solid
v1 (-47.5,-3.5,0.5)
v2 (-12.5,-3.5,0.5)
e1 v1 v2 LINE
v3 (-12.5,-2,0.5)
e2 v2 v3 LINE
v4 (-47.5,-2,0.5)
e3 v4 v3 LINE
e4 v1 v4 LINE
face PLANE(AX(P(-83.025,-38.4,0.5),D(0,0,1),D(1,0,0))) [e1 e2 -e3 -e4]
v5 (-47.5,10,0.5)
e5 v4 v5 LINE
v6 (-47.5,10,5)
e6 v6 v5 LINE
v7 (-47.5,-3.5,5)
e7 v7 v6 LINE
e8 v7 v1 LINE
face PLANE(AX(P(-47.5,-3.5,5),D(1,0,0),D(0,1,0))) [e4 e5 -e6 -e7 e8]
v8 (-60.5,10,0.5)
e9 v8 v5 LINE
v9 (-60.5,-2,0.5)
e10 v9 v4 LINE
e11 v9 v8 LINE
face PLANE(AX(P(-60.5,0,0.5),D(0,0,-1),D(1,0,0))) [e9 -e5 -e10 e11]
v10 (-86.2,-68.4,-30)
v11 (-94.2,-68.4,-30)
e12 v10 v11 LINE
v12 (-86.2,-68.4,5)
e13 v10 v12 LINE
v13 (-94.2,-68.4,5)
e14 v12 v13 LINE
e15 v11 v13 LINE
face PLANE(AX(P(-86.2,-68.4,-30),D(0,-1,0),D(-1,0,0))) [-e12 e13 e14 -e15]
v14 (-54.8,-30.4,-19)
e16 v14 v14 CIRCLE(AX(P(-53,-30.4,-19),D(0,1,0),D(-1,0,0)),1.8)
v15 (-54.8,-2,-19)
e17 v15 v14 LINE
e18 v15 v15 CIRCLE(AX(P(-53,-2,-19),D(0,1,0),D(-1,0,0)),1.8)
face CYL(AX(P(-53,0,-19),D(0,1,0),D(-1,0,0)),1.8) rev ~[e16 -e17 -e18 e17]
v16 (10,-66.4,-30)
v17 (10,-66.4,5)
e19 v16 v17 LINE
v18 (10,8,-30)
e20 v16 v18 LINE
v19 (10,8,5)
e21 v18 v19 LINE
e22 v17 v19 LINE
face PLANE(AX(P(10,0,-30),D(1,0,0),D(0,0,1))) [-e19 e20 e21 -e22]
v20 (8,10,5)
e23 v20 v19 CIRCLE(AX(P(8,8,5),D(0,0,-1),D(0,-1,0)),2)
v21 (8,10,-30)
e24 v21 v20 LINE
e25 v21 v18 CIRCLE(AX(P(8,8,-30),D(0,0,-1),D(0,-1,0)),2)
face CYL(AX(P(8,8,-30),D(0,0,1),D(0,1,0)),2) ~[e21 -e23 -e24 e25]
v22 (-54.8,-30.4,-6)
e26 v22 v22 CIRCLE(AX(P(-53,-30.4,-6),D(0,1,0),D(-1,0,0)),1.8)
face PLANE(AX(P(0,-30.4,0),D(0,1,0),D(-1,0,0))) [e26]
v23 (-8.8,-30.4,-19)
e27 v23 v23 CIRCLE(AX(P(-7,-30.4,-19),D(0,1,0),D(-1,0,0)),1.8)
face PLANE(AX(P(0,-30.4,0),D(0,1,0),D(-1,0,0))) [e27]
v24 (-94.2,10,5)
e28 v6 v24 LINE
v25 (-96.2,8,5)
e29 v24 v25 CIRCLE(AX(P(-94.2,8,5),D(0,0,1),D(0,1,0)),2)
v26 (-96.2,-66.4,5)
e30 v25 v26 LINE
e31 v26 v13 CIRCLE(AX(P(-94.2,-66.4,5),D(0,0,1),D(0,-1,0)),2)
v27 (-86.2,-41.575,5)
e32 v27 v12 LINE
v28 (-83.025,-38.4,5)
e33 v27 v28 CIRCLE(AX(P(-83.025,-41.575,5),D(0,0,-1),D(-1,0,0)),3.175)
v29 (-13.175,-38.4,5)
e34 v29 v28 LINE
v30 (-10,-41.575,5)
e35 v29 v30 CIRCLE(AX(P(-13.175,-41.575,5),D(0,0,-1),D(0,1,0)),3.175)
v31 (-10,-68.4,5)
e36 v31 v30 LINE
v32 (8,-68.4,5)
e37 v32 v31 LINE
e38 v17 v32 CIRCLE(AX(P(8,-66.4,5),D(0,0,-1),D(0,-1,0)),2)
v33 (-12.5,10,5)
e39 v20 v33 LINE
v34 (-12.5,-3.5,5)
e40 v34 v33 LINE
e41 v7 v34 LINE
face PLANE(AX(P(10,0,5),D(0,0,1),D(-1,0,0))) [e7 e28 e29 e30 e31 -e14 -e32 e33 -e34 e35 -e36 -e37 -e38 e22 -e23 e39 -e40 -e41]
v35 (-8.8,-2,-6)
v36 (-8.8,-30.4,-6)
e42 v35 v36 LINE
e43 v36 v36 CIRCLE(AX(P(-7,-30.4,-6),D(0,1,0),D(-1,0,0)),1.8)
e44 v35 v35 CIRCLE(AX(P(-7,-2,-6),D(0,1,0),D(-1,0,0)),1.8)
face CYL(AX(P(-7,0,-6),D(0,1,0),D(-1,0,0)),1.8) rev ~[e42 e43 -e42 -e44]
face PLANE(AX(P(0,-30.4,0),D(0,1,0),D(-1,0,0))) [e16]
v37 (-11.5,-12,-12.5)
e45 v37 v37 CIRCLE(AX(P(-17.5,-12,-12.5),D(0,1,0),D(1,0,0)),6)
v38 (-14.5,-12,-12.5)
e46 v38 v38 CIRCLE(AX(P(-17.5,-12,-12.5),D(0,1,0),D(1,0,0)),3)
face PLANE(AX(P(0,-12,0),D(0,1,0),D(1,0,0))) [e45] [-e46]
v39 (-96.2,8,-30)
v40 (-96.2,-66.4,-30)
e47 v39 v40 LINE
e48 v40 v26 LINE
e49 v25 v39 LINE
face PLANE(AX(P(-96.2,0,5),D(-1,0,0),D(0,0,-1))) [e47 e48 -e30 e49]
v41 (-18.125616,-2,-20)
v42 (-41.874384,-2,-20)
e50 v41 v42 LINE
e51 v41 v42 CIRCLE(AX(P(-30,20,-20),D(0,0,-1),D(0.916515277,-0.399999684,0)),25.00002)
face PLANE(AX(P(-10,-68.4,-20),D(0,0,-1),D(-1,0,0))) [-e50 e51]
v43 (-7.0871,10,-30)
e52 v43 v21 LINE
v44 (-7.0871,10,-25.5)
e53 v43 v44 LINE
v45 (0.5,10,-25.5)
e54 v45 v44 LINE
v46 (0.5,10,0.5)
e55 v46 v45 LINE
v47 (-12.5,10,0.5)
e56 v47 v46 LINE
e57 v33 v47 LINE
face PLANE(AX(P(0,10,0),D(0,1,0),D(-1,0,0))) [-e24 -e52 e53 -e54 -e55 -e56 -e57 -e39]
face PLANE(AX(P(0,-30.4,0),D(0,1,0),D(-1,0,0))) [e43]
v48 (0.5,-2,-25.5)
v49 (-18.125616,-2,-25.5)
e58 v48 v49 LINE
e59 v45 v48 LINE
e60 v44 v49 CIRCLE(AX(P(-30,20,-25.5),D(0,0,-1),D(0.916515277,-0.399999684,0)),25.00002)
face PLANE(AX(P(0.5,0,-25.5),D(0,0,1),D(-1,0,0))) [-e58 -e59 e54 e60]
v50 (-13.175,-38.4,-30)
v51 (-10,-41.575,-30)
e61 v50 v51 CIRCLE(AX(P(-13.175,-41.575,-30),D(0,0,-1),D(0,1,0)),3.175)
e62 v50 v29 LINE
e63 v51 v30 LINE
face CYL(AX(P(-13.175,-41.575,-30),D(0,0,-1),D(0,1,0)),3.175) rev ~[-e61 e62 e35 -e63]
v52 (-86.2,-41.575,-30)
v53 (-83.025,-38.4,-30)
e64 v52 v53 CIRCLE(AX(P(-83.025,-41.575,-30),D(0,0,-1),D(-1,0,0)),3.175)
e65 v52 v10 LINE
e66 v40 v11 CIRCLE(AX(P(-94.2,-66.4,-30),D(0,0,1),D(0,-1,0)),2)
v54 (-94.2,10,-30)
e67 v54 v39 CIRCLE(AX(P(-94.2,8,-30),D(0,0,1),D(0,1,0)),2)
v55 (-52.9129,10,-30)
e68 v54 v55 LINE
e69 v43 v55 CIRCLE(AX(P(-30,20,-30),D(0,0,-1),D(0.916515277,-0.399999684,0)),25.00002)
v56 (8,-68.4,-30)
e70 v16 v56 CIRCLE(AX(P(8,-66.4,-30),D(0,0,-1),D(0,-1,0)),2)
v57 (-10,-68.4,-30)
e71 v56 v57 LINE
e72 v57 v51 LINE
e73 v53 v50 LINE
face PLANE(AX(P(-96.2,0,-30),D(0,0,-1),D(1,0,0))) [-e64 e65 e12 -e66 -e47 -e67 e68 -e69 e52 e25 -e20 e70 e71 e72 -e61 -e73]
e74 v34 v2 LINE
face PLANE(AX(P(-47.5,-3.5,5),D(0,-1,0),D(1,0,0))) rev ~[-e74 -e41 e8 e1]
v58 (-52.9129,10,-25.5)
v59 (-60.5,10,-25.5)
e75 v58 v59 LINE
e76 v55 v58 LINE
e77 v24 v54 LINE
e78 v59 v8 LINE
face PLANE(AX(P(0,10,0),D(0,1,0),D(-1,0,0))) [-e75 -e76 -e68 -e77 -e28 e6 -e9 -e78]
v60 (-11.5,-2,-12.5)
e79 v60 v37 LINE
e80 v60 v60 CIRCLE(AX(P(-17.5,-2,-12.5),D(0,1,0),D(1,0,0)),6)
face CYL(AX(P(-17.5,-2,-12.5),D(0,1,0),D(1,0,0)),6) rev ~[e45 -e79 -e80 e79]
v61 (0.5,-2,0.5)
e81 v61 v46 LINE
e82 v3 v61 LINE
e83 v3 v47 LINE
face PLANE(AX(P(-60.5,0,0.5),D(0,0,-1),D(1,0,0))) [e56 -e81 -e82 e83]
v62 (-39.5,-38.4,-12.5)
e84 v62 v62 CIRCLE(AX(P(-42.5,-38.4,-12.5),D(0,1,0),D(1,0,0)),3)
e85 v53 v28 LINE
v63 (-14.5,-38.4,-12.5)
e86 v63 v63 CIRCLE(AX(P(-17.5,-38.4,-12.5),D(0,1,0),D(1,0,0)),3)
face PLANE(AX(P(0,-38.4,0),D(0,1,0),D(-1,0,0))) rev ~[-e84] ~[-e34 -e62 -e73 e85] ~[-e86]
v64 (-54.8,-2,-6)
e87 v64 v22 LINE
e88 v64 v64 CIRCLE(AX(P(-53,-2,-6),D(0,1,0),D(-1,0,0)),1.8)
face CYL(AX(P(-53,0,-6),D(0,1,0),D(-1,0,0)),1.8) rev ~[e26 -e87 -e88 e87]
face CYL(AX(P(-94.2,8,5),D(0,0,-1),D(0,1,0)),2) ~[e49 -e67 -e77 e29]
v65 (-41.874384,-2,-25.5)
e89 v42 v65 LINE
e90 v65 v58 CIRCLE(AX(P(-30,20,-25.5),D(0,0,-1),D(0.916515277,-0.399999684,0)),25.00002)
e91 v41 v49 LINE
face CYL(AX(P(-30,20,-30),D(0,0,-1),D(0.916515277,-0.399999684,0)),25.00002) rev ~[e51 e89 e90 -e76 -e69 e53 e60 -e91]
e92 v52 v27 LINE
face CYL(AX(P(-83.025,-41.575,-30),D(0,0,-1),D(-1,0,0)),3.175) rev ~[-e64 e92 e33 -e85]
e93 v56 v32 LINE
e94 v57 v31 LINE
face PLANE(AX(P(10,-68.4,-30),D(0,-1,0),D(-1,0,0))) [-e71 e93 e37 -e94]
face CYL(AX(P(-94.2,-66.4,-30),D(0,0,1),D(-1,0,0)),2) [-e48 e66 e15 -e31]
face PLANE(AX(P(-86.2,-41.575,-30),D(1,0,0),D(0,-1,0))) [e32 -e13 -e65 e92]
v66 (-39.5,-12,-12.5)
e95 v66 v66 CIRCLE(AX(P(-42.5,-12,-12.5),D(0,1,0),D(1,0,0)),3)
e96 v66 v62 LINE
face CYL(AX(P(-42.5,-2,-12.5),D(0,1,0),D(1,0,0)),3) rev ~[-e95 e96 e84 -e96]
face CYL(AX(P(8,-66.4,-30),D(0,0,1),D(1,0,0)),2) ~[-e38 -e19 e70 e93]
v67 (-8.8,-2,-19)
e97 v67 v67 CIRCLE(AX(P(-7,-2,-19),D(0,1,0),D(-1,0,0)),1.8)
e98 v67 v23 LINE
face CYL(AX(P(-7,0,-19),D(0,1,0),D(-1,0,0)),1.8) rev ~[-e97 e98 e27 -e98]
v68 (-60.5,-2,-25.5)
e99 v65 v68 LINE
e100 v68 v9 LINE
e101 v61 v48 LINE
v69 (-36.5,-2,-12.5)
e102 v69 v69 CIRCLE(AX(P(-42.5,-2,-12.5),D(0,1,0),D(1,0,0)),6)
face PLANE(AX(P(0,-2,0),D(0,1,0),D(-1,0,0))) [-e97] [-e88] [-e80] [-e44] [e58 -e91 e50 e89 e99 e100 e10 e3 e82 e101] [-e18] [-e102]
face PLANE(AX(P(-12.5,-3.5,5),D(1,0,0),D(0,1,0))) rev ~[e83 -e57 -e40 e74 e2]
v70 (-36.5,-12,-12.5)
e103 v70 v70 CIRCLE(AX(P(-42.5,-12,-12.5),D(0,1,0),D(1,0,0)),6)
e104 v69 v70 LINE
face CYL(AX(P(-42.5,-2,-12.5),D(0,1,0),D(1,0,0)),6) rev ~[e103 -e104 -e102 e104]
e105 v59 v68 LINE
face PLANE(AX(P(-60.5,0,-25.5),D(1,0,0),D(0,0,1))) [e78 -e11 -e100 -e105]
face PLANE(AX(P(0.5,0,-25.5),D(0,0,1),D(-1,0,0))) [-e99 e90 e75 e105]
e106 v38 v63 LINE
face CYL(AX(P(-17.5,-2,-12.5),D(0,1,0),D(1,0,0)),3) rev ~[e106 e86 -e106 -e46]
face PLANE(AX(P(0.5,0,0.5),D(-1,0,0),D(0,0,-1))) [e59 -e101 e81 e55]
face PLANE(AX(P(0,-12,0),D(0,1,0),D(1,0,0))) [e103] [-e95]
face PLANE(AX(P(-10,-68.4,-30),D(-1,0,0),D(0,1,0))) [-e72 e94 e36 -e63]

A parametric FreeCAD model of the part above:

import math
import FreeCAD as App
import Part
import Sketcher


def edges_at(feature, points):
    """Names of the edges that pass closest to the given points."""
    edges = feature.Shape.Edges
    near = lambda p: min(range(len(edges)), key=lambda i: edges[i].distToShape(Part.Vertex(*p))[0])
    return sorted({f"Edge{near(p) + 1}" for p in points})


def add_polygon(sketch, points):
    """Adds a closed chain of lines whose ends are joined by coincident constraints."""
    first, n = sketch.GeometryCount, len(points)
    for a, b in zip(points, points[1:] + points[:1]):
        sketch.addGeometry(Part.LineSegment(App.Vector(*a, 0), App.Vector(*b, 0)), False)
    for i in range(n):
        sketch.addConstraint(Sketcher.Constraint("Coincident", first + i, 2, first + (i + 1) % n, 1))

doc = App.newDocument("Part")
params = doc.addObject("Spreadsheet::Sheet", "Params")
for row, (alias, value) in enumerate([
    ("sketch1_height", "35 mm"),
    ("sketch1_width", "106.2 mm"),
    ("pad1_length", "10 mm"),
    ("pad1_length2", "38.4 mm"),
    ("sketch2_diameter", "3.6 mm"),
    ("sketch2_width", "61 mm"),
    ("sketch2_height", "26 mm"),
    ("pocket1_length", "10 mm"),
    ("pocket1_length2", "2 mm"),
    ("sketch3_diameter", "3.6 mm"),
    ("pocket2_length", "10 mm"),
    ("pocket2_length2", "30.4 mm"),
    ("sketch4_width", "20 mm"),
    ("sketch4_height", "30 mm"),
    ("sketch4_width2", "10 mm"),
    ("pad2_length", "35 mm"),
    ("sketch5_diameter", "6 mm"),
    ("pocket3_length", "36.4 mm"),
    ("sketch6_diameter", "12 mm"),
    ("pocket4_length", "10 mm"),
    ("fillet_radius", "2 mm"),
    ("fillet2_radius", "2 mm"),
    ("sketch7_width", "35 mm"),
    ("sketch7_height", "13.5 mm"),
    ("pocket5_length", "4.5 mm"),
    ("sketch8_radius", "25 mm"),
    ("pocket6_length", "10 mm"),
], start=1):
    params.set(f"A{row}", alias)
    params.set(f"B{row}", "=" + value)
    params.setAlias(f"B{row}", alias)

body = doc.addObject("PartDesign::Body", "Body")

sketch1 = body.newObject("Sketcher::SketchObject", "Sketch")
sketch1.AttachmentSupport = (doc.getObject("XZ_Plane"), [""])
sketch1.MapMode = "FlatFace"
add_polygon(sketch1, [(-96, 5), (10, 5), (10, -30), (-96, -30)])
sketch1.addConstraint(Sketcher.Constraint("Horizontal", 0))
sketch1.addConstraint(Sketcher.Constraint("Vertical", 1))
sketch1.addConstraint(Sketcher.Constraint("Horizontal", 2))
sketch1.addConstraint(Sketcher.Constraint("Vertical", 3))
sketch1.addConstraint(Sketcher.Constraint("DistanceY", 1, 2, 1, 1, 35.0))
sketch1.addConstraint(Sketcher.Constraint("DistanceX", 0, 1, 0, 2, 106.2))
sketch1.addConstraint(Sketcher.Constraint("DistanceX", -1, 1, 0, 2, 10.0))
sketch1.addConstraint(Sketcher.Constraint("DistanceY", -1, 1, 0, 2, 5.0))
sketch1.setExpression("Constraints[8]", "Params.sketch1_height")
sketch1.setExpression("Constraints[9]", "Params.sketch1_width")
pad1 = body.newObject("PartDesign::Pad", "Pad")
pad1.Profile = sketch1
pad1.Type = "TwoLengths"
pad1.setExpression("Length", "Params.pad1_length")
pad1.setExpression("Length2", "Params.pad1_length2")
pad1.Reversed = True

sketch2 = body.newObject("Sketcher::SketchObject", "Sketch001")
sketch2.AttachmentSupport = (doc.getObject("XZ_Plane"), [""])
sketch2.MapMode = "FlatFace"
add_polygon(sketch2, [(-60.5, -25.5), (-60.5, 0.5), (0.5, 0.5), (0.5, -25.5)])
sketch2.addGeometry(Part.Circle(App.Vector(-7, -19, 0), App.Vector(0, 0, 1), 1.8), False)
sketch2.addGeometry(Part.Circle(App.Vector(-53, -19, 0), App.Vector(0, 0, 1), 1.8), False)
sketch2.addGeometry(Part.Circle(App.Vector(-7, -6, 0), App.Vector(0, 0, 1), 1.8), False)
sketch2.addGeometry(Part.Circle(App.Vector(-53, -6, 0), App.Vector(0, 0, 1), 1.8), False)
sketch2.addConstraint(Sketcher.Constraint("Vertical", 0))
sketch2.addConstraint(Sketcher.Constraint("Horizontal", 1))
sketch2.addConstraint(Sketcher.Constraint("Vertical", 2))
sketch2.addConstraint(Sketcher.Constraint("Horizontal", 3))
sketch2.addConstraint(Sketcher.Constraint("Equal", 4, 5))
sketch2.addConstraint(Sketcher.Constraint("Equal", 5, 6))
sketch2.addConstraint(Sketcher.Constraint("Equal", 6, 7))
sketch2.addConstraint(Sketcher.Constraint("Horizontal", 4, 3, 5, 3))
sketch2.addConstraint(Sketcher.Constraint("Horizontal", 6, 3, 7, 3))
sketch2.addConstraint(Sketcher.Constraint("Vertical", 4, 3, 6, 3))
sketch2.addConstraint(Sketcher.Constraint("Vertical", 5, 3, 7, 3))
sketch2.addConstraint(Sketcher.Constraint("Diameter", 4, 3.6))
sketch2.addConstraint(Sketcher.Constraint("DistanceX", 5, 3, 4, 3, 46.0))
sketch2.addConstraint(Sketcher.Constraint("DistanceY", 4, 3, 6, 3, 13.0))
sketch2.addConstraint(Sketcher.Constraint("DistanceY", -1, 1, 0, 2, 0.5))
sketch2.addConstraint(Sketcher.Constraint("DistanceX", -1, 1, 1, 2, 0.5))
sketch2.addConstraint(Sketcher.Constraint("DistanceX", 1, 1, 1, 2, 61.0))
sketch2.addConstraint(Sketcher.Constraint("DistanceY", 0, 1, 0, 2, 26.0))
sketch2.addConstraint(Sketcher.Constraint("DistanceX", 4, 3, -1, 1, 7.0))
sketch2.addConstraint(Sketcher.Constraint("DistanceY", 4, 3, -1, 1, 19.0))
sketch2.setExpression("Constraints[15]", "Params.sketch2_diameter")
sketch2.setExpression("Constraints[20]", "Params.sketch2_width")
sketch2.setExpression("Constraints[21]", "Params.sketch2_height")
pocket1 = body.newObject("PartDesign::Pocket", "Pocket")
pocket1.Profile = sketch2
pocket1.Type = "TwoLengths"
pocket1.setExpression("Length", "Params.pocket1_length")
pocket1.setExpression("Length2", "Params.pocket1_length2")

sketch3 = body.newObject("Sketcher::SketchObject", "Sketch002")
sketch3.AttachmentSupport = (doc.getObject("XZ_Plane"), [""])
sketch3.MapMode = "FlatFace"
sketch3.addGeometry(Part.Circle(App.Vector(-53, -19, 0), App.Vector(0, 0, 1), 1.8), False)
sketch3.addGeometry(Part.Circle(App.Vector(-7, -19, 0), App.Vector(0, 0, 1), 1.8), False)
sketch3.addGeometry(Part.Circle(App.Vector(-7, -6, 0), App.Vector(0, 0, 1), 1.8), False)
sketch3.addGeometry(Part.Circle(App.Vector(-53, -6, 0), App.Vector(0, 0, 1), 1.8), False)
sketch3.addConstraint(Sketcher.Constraint("Equal", 0, 1))
sketch3.addConstraint(Sketcher.Constraint("Equal", 1, 2))
sketch3.addConstraint(Sketcher.Constraint("Equal", 2, 3))
sketch3.addConstraint(Sketcher.Constraint("Horizontal", 0, 3, 1, 3))
sketch3.addConstraint(Sketcher.Constraint("Horizontal", 2, 3, 3, 3))
sketch3.addConstraint(Sketcher.Constraint("Vertical", 1, 3, 2, 3))
sketch3.addConstraint(Sketcher.Constraint("Vertical", 0, 3, 3, 3))
sketch3.addConstraint(Sketcher.Constraint("Diameter", 0, 3.6))
sketch3.addConstraint(Sketcher.Constraint("DistanceX", 0, 3, 1, 3, 46.0))
sketch3.addConstraint(Sketcher.Constraint("DistanceY", 1, 3, 2, 3, 13.0))
sketch3.addConstraint(Sketcher.Constraint("DistanceX", 0, 3, -1, 1, 53.0))
sketch3.addConstraint(Sketcher.Constraint("DistanceY", 0, 3, -1, 1, 19.0))
sketch3.setExpression("Constraints[7]", "Params.sketch3_diameter")
pocket2 = body.newObject("PartDesign::Pocket", "Pocket001")
pocket2.Profile = sketch3
pocket2.Type = "TwoLengths"
pocket2.setExpression("Length", "Params.pocket2_length")
pocket2.setExpression("Length2", "Params.pocket2_length2")

sketch4 = body.newObject("Sketcher::SketchObject", "Sketch003")
sketch4.AttachmentSupport = (doc.getObject("XY_Plane"), [""])
sketch4.MapMode = "FlatFace"
sketch4.AttachmentOffset = App.Placement(App.Vector(0, 0, -30), App.Rotation())
sketch4.addGeometry(Part.LineSegment(App.Vector(-96.2, -68.4, 0), App.Vector(-96.2, -38.4, 0)), False)
sketch4.addGeometry(Part.LineSegment(App.Vector(-96.2, -38.4, 0), App.Vector(-83, -38.4, 0)), False)
sketch4.addGeometry(Part.ArcOfCircle(Part.Circle(App.Vector(-83, -41.6, 0), App.Vector(0, 0, 1), 3.2), math.radians(90), math.radians(180)), False)
sketch4.addGeometry(Part.LineSegment(App.Vector(-86.2, -41.6, 0), App.Vector(-86.2, -68.4, 0)), False)
sketch4.addGeometry(Part.LineSegment(App.Vector(-86.2, -68.4, 0), App.Vector(-96.2, -68.4, 0)), False)
sketch4.addGeometry(Part.ArcOfCircle(Part.Circle(App.Vector(-13.2, -41.6, 0), App.Vector(0, 0, 1), 3.2), math.radians(0), math.radians(90)), False)
sketch4.addGeometry(Part.LineSegment(App.Vector(-13.2, -38.4, 0), App.Vector(10, -38.4, 0)), False)
sketch4.addGeometry(Part.LineSegment(App.Vector(10, -38.4, 0), App.Vector(10, -68.4, 0)), False)
sketch4.addGeometry(Part.LineSegment(App.Vector(10, -68.4, 0), App.Vector(-10, -68.4, 0)), False)
sketch4.addGeometry(Part.LineSegment(App.Vector(-10, -68.4, 0), App.Vector(-10, -41.6, 0)), False)
sketch4.addConstraint(Sketcher.Constraint("Coincident", 0, 2, 1, 1))
sketch4.addConstraint(Sketcher.Constraint("Tangent", 1, 2, 2, 1))
sketch4.addConstraint(Sketcher.Constraint("Tangent", 2, 2, 3, 1))
sketch4.addConstraint(Sketcher.Constraint("Coincident", 3, 2, 4, 1))
sketch4.addConstraint(Sketcher.Constraint("Coincident", 4, 2, 0, 1))
sketch4.addConstraint(Sketcher.Constraint("Tangent", 5, 2, 6, 1))
sketch4.addConstraint(Sketcher.Constraint("Coincident", 6, 2, 7, 1))
sketch4.addConstraint(Sketcher.Constraint("Coincident", 7, 2, 8, 1))
sketch4.addConstraint(Sketcher.Constraint("Coincident", 8, 2, 9, 1))
sketch4.addConstraint(Sketcher.Constraint("Tangent", 9, 2, 5, 1))
sketch4.addConstraint(Sketcher.Constraint("Vertical", 0))
sketch4.addConstraint(Sketcher.Constraint("Horizontal", 1))
sketch4.addConstraint(Sketcher.Constraint("Vertical", 3))
sketch4.addConstraint(Sketcher.Constraint("Horizontal", 4))
sketch4.addConstraint(Sketcher.Constraint("Horizontal", 6))
sketch4.addConstraint(Sketcher.Constraint("Vertical", 7))
sketch4.addConstraint(Sketcher.Constraint("Horizontal", 8))
sketch4.addConstraint(Sketcher.Constraint("Vertical", 9))
sketch4.addConstraint(Sketcher.Constraint("Equal", 2, 5))
sketch4.addConstraint(Sketcher.Constraint("Horizontal", 2, 3, 5, 3))
sketch4.addConstraint(Sketcher.Constraint("Horizontal", 4, 2, 7, 2))
sketch4.addConstraint(Sketcher.Constraint("DistanceX", 8, 2, 8, 1, 20.0))
sketch4.addConstraint(Sketcher.Constraint("DistanceY", 0, 1, 0, 2, 30.0))
sketch4.addConstraint(Sketcher.Constraint("Radius", 2, 3.175))
sketch4.addConstraint(Sketcher.Constraint("DistanceX", 3, 2, 8, 2, 76.2))
sketch4.addConstraint(Sketcher.Constraint("DistanceX", 4, 2, 4, 1, 10.0))
sketch4.addConstraint(Sketcher.Constraint("DistanceX", -1, 1, 6, 2, 10.0))
sketch4.addConstraint(Sketcher.Constraint("DistanceY", 0, 2, -1, 1, 38.4))
sketch4.setExpression("Constraints[21]", "Params.sketch4_width")
sketch4.setExpression("Constraints[22]", "Params.sketch4_height")
sketch4.setExpression("Constraints[25]", "Params.sketch4_width2")
pad2 = body.newObject("PartDesign::Pad", "Pad001")
pad2.Profile = sketch4
pad2.setExpression("Length", "Params.pad2_length")

sketch5 = body.newObject("Sketcher::SketchObject", "Sketch004")
sketch5.AttachmentSupport = (doc.getObject("XZ_Plane"), [""])
sketch5.MapMode = "FlatFace"
sketch5.AttachmentOffset = App.Placement(App.Vector(0, 0, 2), App.Rotation())
sketch5.addGeometry(Part.Circle(App.Vector(-42.5, -12.5, 0), App.Vector(0, 0, 1), 3), False)
sketch5.addGeometry(Part.Circle(App.Vector(-17.5, -12.5, 0), App.Vector(0, 0, 1), 3), False)
sketch5.addConstraint(Sketcher.Constraint("Equal", 0, 1))
sketch5.addConstraint(Sketcher.Constraint("Horizontal", 0, 3, 1, 3))
sketch5.addConstraint(Sketcher.Constraint("Diameter", 0, 6.0))
sketch5.addConstraint(Sketcher.Constraint("DistanceX", 0, 3, 1, 3, 25.0))
sketch5.addConstraint(Sketcher.Constraint("DistanceX", 0, 3, -1, 1, 42.5))
sketch5.addConstraint(Sketcher.Constraint("DistanceY", 0, 3, -1, 1, 12.5))
sketch5.setExpression("Constraints[2]", "Params.sketch5_diameter")
pocket3 = body.newObject("PartDesign::Pocket", "Pocket002")
pocket3.Profile = sketch5
pocket3.setExpression("Length", "Params.pocket3_length")
pocket3.Reversed = True

sketch6 = body.newObject("Sketcher::SketchObject", "Sketch005")
sketch6.AttachmentSupport = (doc.getObject("XZ_Plane"), [""])
sketch6.MapMode = "FlatFace"
sketch6.AttachmentOffset = App.Placement(App.Vector(0, 0, 2), App.Rotation())
sketch6.addGeometry(Part.Circle(App.Vector(-18, -12, 0), App.Vector(0, 0, 1), 6), False)
sketch6.addGeometry(Part.Circle(App.Vector(-42, -12, 0), App.Vector(0, 0, 1), 6), False)
sketch6.addConstraint(Sketcher.Constraint("Equal", 0, 1))
sketch6.addConstraint(Sketcher.Constraint("Horizontal", 0, 3, 1, 3))
sketch6.addConstraint(Sketcher.Constraint("Diameter", 0, 12.0))
sketch6.addConstraint(Sketcher.Constraint("DistanceX", 1, 3, 0, 3, 25.0))
sketch6.addConstraint(Sketcher.Constraint("DistanceX", 0, 3, -1, 1, 17.5))
sketch6.addConstraint(Sketcher.Constraint("DistanceY", 0, 3, -1, 1, 12.5))
sketch6.setExpression("Constraints[2]", "Params.sketch6_diameter")
pocket4 = body.newObject("PartDesign::Pocket", "Pocket003")
pocket4.Profile = sketch6
pocket4.setExpression("Length", "Params.pocket4_length")
pocket4.Reversed = True
doc.recompute()

fillet = body.newObject("PartDesign::Fillet", "Fillet")
fillet.Base = (pocket4, edges_at(pocket4, [(-96.2, 10, -12.5), (10, 10, -12.5)]))
fillet.setExpression("Radius", "Params.fillet_radius")
doc.recompute()

fillet2 = body.newObject("PartDesign::Fillet", "Fillet001")
fillet2.Base = (fillet, edges_at(fillet, [(-96.2, -68.4, -12.5), (10, -68.4, -12.5)]))
fillet2.setExpression("Radius", "Params.fillet2_radius")

sketch7 = body.newObject("Sketcher::SketchObject", "Sketch006")
sketch7.AttachmentSupport = (doc.getObject("XY_Plane"), [""])
sketch7.MapMode = "FlatFace"
sketch7.AttachmentOffset = App.Placement(App.Vector(0, 0, 5), App.Rotation())
add_polygon(sketch7, [(-48, 10), (-48, -4), (-12, -4), (-12, 10)])
sketch7.addConstraint(Sketcher.Constraint("Vertical", 0))
sketch7.addConstraint(Sketcher.Constraint("Horizontal", 1))
sketch7.addConstraint(Sketcher.Constraint("Vertical", 2))
sketch7.addConstraint(Sketcher.Constraint("Horizontal", 3))
sketch7.addConstraint(Sketcher.Constraint("DistanceX", 1, 1, 1, 2, 35.0))
sketch7.addConstraint(Sketcher.Constraint("DistanceY", 0, 2, 0, 1, 13.5))
sketch7.addConstraint(Sketcher.Constraint("DistanceY", -1, 1, 2, 2, 10.0))
sketch7.addConstraint(Sketcher.Constraint("DistanceX", 0, 2, -1, 1, 47.5))
sketch7.setExpression("Constraints[8]", "Params.sketch7_width")
sketch7.setExpression("Constraints[9]", "Params.sketch7_height")
pocket5 = body.newObject("PartDesign::Pocket", "Pocket004")
pocket5.Profile = sketch7
pocket5.setExpression("Length", "Params.pocket5_length")

sketch8 = body.newObject("Sketcher::SketchObject", "Sketch007")
sketch8.AttachmentSupport = (doc.getObject("XY_Plane"), [""])
sketch8.MapMode = "FlatFace"
sketch8.AttachmentOffset = App.Placement(App.Vector(0, 0, -30), App.Rotation())
sketch8.addGeometry(Part.LineSegment(App.Vector(-53, 10, 0), App.Vector(-7, 10, 0)), False)
sketch8.addGeometry(Part.ArcOfCircle(Part.Circle(App.Vector(-30, 20, 0), App.Vector(0, 0, 1), 25), math.radians(-156), math.radians(-24)), False)
sketch8.addConstraint(Sketcher.Constraint("Coincident", 0, 1, 1, 1))
sketch8.addConstraint(Sketcher.Constraint("Coincident", 1, 2, 0, 2))
sketch8.addConstraint(Sketcher.Constraint("Horizontal", 0))
sketch8.addConstraint(Sketcher.Constraint("Radius", 1, 25.0))
sketch8.addConstraint(Sketcher.Constraint("DistanceY", -1, 1, 0, 1, 10.0))
sketch8.addConstraint(Sketcher.Constraint("DistanceY", 0, 1, 1, 3, 10.0))
sketch8.addConstraint(Sketcher.Constraint("DistanceX", 1, 3, -1, 1, 30.0))
sketch8.setExpression("Constraints[3]", "Params.sketch8_radius")
pocket6 = body.newObject("PartDesign::Pocket", "Pocket005")
pocket6.Profile = sketch8
pocket6.setExpression("Length", "Params.pocket6_length")
pocket6.Reversed = True

doc.recompute()
